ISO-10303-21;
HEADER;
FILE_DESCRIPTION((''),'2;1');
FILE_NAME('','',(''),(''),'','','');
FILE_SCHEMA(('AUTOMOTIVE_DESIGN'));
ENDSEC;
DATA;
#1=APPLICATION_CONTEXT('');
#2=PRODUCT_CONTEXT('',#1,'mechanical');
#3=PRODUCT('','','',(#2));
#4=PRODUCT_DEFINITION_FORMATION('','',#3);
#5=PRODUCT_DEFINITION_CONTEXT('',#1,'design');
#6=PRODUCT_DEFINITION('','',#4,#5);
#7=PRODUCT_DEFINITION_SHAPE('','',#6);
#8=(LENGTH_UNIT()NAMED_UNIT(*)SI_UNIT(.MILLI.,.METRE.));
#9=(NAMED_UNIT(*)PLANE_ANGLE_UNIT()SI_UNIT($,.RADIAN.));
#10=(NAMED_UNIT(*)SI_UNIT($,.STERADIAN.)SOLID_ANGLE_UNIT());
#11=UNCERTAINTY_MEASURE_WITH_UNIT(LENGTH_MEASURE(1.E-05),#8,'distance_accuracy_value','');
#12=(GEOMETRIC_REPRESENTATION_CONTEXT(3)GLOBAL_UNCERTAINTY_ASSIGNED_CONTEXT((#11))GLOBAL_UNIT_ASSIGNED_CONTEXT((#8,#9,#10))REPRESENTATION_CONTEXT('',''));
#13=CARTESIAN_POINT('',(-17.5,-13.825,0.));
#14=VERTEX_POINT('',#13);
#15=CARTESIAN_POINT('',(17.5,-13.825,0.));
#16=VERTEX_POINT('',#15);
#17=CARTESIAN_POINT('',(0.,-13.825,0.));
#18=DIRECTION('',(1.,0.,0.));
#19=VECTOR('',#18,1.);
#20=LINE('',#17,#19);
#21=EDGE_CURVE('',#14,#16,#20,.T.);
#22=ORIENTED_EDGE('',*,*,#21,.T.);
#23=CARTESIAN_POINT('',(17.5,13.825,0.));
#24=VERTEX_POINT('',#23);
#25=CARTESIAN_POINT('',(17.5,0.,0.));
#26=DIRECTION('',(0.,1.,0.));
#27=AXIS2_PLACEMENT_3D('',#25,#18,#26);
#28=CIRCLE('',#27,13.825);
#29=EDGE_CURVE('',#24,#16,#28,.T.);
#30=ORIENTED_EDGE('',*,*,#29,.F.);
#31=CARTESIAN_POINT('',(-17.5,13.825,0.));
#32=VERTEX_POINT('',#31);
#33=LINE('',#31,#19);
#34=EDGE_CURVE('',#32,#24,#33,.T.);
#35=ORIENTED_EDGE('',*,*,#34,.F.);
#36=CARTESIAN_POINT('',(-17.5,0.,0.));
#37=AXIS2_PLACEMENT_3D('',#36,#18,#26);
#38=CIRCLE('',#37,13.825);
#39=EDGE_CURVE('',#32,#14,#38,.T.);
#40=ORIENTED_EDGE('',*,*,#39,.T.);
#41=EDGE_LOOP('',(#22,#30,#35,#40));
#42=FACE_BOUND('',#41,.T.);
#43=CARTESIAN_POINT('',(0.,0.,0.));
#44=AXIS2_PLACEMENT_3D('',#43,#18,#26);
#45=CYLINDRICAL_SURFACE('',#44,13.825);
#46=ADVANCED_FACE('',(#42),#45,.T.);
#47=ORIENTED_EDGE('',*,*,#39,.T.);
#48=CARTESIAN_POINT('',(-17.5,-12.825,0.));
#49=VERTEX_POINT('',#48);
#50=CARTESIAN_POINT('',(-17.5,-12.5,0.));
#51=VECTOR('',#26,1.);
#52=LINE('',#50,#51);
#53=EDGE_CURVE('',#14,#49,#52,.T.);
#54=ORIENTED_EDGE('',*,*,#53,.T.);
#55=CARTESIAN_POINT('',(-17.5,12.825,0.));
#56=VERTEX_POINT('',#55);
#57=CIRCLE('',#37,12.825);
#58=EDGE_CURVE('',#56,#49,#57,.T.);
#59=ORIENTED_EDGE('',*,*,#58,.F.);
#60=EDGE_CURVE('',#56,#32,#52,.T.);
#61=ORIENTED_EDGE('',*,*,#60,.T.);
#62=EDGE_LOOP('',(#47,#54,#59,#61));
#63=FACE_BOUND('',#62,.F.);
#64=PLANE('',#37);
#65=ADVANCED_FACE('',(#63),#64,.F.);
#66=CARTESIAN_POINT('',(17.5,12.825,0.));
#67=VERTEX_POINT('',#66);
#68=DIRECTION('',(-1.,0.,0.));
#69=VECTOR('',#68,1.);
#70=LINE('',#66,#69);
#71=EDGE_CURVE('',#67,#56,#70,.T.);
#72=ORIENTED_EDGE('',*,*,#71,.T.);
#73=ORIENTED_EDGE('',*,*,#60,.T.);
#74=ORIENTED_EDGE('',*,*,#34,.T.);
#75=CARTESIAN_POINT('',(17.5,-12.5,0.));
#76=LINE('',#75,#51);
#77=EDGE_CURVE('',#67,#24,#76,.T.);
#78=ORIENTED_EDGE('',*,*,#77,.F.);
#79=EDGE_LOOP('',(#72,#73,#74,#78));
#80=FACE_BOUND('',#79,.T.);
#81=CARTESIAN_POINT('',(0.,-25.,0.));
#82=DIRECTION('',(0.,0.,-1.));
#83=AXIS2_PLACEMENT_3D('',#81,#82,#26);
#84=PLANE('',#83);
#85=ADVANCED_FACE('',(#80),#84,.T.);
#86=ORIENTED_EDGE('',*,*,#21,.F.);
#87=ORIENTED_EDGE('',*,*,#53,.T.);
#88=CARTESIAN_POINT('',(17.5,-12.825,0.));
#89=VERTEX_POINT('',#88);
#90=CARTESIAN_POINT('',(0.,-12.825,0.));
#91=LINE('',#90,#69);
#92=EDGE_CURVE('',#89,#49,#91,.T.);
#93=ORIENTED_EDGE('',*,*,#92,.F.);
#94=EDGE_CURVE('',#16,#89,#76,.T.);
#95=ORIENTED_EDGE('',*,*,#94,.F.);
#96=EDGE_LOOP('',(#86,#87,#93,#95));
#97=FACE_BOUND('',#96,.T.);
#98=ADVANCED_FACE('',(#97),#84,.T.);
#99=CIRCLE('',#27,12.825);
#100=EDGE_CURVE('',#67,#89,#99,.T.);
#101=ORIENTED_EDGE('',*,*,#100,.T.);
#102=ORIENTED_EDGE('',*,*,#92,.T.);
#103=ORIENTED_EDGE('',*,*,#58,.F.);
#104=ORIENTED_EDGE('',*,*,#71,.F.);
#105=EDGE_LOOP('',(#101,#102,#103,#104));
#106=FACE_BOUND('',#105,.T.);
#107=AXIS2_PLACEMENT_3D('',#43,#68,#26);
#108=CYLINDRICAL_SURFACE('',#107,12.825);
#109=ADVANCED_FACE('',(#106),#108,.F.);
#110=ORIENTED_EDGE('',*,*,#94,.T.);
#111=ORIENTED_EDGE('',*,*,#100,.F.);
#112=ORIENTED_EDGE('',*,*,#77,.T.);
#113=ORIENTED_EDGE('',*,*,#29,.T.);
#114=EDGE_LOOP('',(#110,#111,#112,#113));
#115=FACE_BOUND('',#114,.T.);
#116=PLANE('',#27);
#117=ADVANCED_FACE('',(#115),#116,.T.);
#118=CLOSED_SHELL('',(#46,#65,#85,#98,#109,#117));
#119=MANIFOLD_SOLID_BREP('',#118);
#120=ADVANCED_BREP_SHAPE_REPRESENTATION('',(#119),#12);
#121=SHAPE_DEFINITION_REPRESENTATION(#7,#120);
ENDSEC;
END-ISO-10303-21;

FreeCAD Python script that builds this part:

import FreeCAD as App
import Part
import Sketcher
Q = App.Units.Quantity


def add_polygon(sketch, points):
    """Adds a closed chain of lines whose ends are joined by coincident constraints."""
    first, n = sketch.GeometryCount, len(points)
    for a, b in zip(points, points[1:] + points[:1]):
        sketch.addGeometry(Part.LineSegment(App.Vector(*a, 0), App.Vector(*b, 0)), False)
    for i in range(n):
        sketch.addConstraint(Sketcher.Constraint("Coincident", first + i, 2, first + (i + 1) % n, 1))

doc = App.newDocument("Part")
body = doc.addObject("PartDesign::Body", "Body")

sketch1 = body.newObject("Sketcher::SketchObject", "Sketch")
sketch1.AttachmentSupport = (doc.getObject("YZ_Plane"), [""])
sketch1.MapMode = "FlatFace"
sketch1.addGeometry([
    Part.Circle(App.Vector(0, 0, 0), App.Vector(0, 0, 1), 14),
    Part.Circle(App.Vector(0, 0, 0), App.Vector(0, 0, 1), 13),
], False)
sketch1.addConstraint([
    Sketcher.Constraint("Coincident", 0, 3, -1, 1),
    Sketcher.Constraint("Coincident", 1, 3, -1, 1),
    Sketcher.Constraint("Diameter", 0, Q("27.65 mm")),
    Sketcher.Constraint("Diameter", 1, Q("25.65 mm")),
])
pad1 = body.newObject("PartDesign::Pad", "Pad")
pad1.Profile = sketch1
pad1.Length = 35
pad1.Midplane = True

sketch2 = body.newObject("Sketcher::SketchObject", "Sketch001")
sketch2.AttachmentSupport = (doc.getObject("YZ_Plane"), [""])
sketch2.MapMode = "FlatFace"
add_polygon(sketch2, [(-25, 0), (-25, -20), (25, -20), (25, 0)])
sketch2.addConstraint([
    Sketcher.Constraint("Vertical", 0),
    Sketcher.Constraint("Horizontal", 1),
    Sketcher.Constraint("Vertical", 2),
    Sketcher.Constraint("Horizontal", 3),
    Sketcher.Constraint("Symmetric", 2, 2, 3, 2, -1, 1),
    Sketcher.Constraint("DistanceX", 1, 1, 1, 2, Q("50 mm")),
    Sketcher.Constraint("DistanceY", 0, 2, 0, 1, Q("20 mm")),
])
pocket1 = body.newObject("PartDesign::Pocket", "Pocket")
pocket1.Profile = sketch2
pocket1.Length = 50
pocket1.Midplane = True

doc.recompute()
